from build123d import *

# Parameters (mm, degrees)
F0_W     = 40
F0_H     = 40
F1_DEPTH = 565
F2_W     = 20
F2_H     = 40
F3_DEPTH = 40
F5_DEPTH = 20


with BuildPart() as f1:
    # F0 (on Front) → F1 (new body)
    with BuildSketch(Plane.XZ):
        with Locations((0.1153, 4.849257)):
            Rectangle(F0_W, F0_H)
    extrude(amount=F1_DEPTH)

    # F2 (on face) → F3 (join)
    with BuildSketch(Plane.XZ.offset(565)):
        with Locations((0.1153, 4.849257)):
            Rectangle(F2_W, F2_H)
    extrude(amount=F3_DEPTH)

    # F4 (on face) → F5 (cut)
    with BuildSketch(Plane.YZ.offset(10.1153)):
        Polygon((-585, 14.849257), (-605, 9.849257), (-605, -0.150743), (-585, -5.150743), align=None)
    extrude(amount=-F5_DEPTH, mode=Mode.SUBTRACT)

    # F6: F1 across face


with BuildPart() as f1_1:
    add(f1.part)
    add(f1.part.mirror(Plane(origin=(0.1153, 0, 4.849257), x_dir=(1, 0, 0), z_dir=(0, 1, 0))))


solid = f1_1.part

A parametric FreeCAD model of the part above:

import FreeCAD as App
import Part
import Sketcher
from FreeCAD import Vector

doc = App.newDocument("Part")
params = doc.addObject("Spreadsheet::Sheet", "Params")
for row, (alias, value) in enumerate([
    ("sketch1_width", "40 mm"),
    ("pad1_length", "565 mm"),
    ("sketch2_width", "20 mm"),
    ("sketch2_height", "40 mm"),
    ("pad2_length", "40 mm"),
    ("sketch3_height", "10 mm"),
    ("sketch3_height2", "20 mm"),
    ("pocket1_length", "20 mm"),
], start=1):
    params.set(f"A{row}", alias)
    params.set(f"B{row}", "=" + value)
    params.setAlias(f"B{row}", alias)

body = doc.addObject("PartDesign::Body", "Body")

sketch1 = doc.addObject("Sketcher::SketchObject", "Sketch")
body.addObject(sketch1)
sketch1.AttachmentSupport = (doc.XZ_Plane, [""])
sketch1.MapMode = "FlatFace"
sketch1.addGeometry([
    Part.LineSegment(Vector(-20, 25, 0), Vector(-20, -15, 0)),
    Part.LineSegment(Vector(-20, -15, 0), Vector(20, -15, 0)),
    Part.LineSegment(Vector(20, -15, 0), Vector(20, 25, 0)),
    Part.LineSegment(Vector(20, 25, 0), Vector(-20, 25, 0)),
], False)
sketch1.addConstraint([
    Sketcher.Constraint("Coincident", 0, 2, 1, 1),
    Sketcher.Constraint("Coincident", 1, 2, 2, 1),
    Sketcher.Constraint("Coincident", 2, 2, 3, 1),
    Sketcher.Constraint("Coincident", 3, 2, 0, 1),
    Sketcher.Constraint("Vertical", 0),
    Sketcher.Constraint("Horizontal", 1),
    Sketcher.Constraint("Vertical", 2),
    Sketcher.Constraint("Horizontal", 3),
    Sketcher.Constraint("Equal", 3, 0),
    Sketcher.Constraint("DistanceX", 1, 1, 1, 2, 40.0),
    Sketcher.Constraint("DistanceX", 0, 2, -1, 1, 19.8847),
    Sketcher.Constraint("DistanceY", 0, 2, -1, 1, 15.150743),
])
sketch1.setExpression("Constraints[9]", "Params.sketch1_width")
pad1 = doc.addObject("PartDesign::Pad", "Pad")
body.addObject(pad1)
pad1.Profile = sketch1
pad1.setExpression("Length", "Params.pad1_length")

sketch2 = doc.addObject("Sketcher::SketchObject", "Sketch001")
body.addObject(sketch2)
sketch2.AttachmentSupport = (doc.XZ_Plane, [""])
sketch2.MapMode = "FlatFace"
sketch2.AttachmentOffset = App.Placement(Vector(0, 0, 565), App.Rotation())
sketch2.addGeometry([
    Part.LineSegment(Vector(-10, 25, 0), Vector(-10, -15, 0)),
    Part.LineSegment(Vector(-10, -15, 0), Vector(10, -15, 0)),
    Part.LineSegment(Vector(10, -15, 0), Vector(10, 25, 0)),
    Part.LineSegment(Vector(10, 25, 0), Vector(-10, 25, 0)),
], False)
sketch2.addConstraint([
    Sketcher.Constraint("Coincident", 0, 2, 1, 1),
    Sketcher.Constraint("Coincident", 1, 2, 2, 1),
    Sketcher.Constraint("Coincident", 2, 2, 3, 1),
    Sketcher.Constraint("Coincident", 3, 2, 0, 1),
    Sketcher.Constraint("Vertical", 0),
    Sketcher.Constraint("Horizontal", 1),
    Sketcher.Constraint("Vertical", 2),
    Sketcher.Constraint("Horizontal", 3),
    Sketcher.Constraint("DistanceX", 1, 1, 1, 2, 20.0),
    Sketcher.Constraint("DistanceY", 0, 2, 0, 1, 40.0),
    Sketcher.Constraint("DistanceX", 0, 2, -1, 1, 9.8847),
    Sketcher.Constraint("DistanceY", 0, 2, -1, 1, 15.150743),
])
sketch2.setExpression("Constraints[8]", "Params.sketch2_width")
sketch2.setExpression("Constraints[9]", "Params.sketch2_height")
pad2 = doc.addObject("PartDesign::Pad", "Pad001")
body.addObject(pad2)
pad2.Profile = sketch2
pad2.setExpression("Length", "Params.pad2_length")

sketch3 = doc.addObject("Sketcher::SketchObject", "Sketch002")
body.addObject(sketch3)
sketch3.AttachmentSupport = (doc.YZ_Plane, [""])
sketch3.MapMode = "FlatFace"
sketch3.AttachmentOffset = App.Placement(Vector(0, 0, 10.1153), App.Rotation())
sketch3.addGeometry([
    Part.LineSegment(Vector(-585, 15, 0), Vector(-605, 10, 0)),
    Part.LineSegment(Vector(-605, 10, 0), Vector(-605, 0, 0)),
    Part.LineSegment(Vector(-605, 0, 0), Vector(-585, -5, 0)),
    Part.LineSegment(Vector(-585, -5, 0), Vector(-585, 15, 0)),
], False)
sketch3.addConstraint([
    Sketcher.Constraint("Coincident", 0, 2, 1, 1),
    Sketcher.Constraint("Coincident", 1, 2, 2, 1),
    Sketcher.Constraint("Coincident", 2, 2, 3, 1),
    Sketcher.Constraint("Coincident", 3, 2, 0, 1),
    Sketcher.Constraint("Vertical", 1),
    Sketcher.Constraint("Vertical", 3),
    Sketcher.Constraint("Equal", 0, 2),
    Sketcher.Constraint("DistanceY", 1, 2, 1, 1, 10.0),
    Sketcher.Constraint("DistanceY", 3, 1, 3, 2, 20.0),
    Sketcher.Constraint("DistanceX", 0, 2, -1, 1, 605.0),
    Sketcher.Constraint("DistanceX", 2, 2, -1, 1, 585.0),
    Sketcher.Constraint("DistanceY", -1, 1, 0, 2, 9.849257),
])
sketch3.setExpression("Constraints[7]", "Params.sketch3_height")
sketch3.setExpression("Constraints[8]", "Params.sketch3_height2")
pocket1 = doc.addObject("PartDesign::Pocket", "Pocket")
body.addObject(pocket1)
pocket1.Profile = sketch3
pocket1.setExpression("Length", "Params.pocket1_length")
body2 = doc.addObject("PartDesign::Body", "Body001")
doc.recompute()

body2.BaseFeature = body
doc.recompute()

mirroring = doc.addObject("Part::Mirroring", "Mirroring")
mirroring.Source = body
mirroring.Base = Vector(0.1153, 0, 4.849257)
mirroring.Normal = Vector(0, 1, 0)
body3 = doc.addObject("PartDesign::Body", "Body002")
body3.BaseFeature = mirroring
boolean = doc.addObject("PartDesign::Boolean", "Boolean")
body2.addObject(boolean)
boolean.Type = "Fuse"
boolean.addObjects([body3])
doc.recompute()
mirroring.Visibility = False

doc.recompute()
